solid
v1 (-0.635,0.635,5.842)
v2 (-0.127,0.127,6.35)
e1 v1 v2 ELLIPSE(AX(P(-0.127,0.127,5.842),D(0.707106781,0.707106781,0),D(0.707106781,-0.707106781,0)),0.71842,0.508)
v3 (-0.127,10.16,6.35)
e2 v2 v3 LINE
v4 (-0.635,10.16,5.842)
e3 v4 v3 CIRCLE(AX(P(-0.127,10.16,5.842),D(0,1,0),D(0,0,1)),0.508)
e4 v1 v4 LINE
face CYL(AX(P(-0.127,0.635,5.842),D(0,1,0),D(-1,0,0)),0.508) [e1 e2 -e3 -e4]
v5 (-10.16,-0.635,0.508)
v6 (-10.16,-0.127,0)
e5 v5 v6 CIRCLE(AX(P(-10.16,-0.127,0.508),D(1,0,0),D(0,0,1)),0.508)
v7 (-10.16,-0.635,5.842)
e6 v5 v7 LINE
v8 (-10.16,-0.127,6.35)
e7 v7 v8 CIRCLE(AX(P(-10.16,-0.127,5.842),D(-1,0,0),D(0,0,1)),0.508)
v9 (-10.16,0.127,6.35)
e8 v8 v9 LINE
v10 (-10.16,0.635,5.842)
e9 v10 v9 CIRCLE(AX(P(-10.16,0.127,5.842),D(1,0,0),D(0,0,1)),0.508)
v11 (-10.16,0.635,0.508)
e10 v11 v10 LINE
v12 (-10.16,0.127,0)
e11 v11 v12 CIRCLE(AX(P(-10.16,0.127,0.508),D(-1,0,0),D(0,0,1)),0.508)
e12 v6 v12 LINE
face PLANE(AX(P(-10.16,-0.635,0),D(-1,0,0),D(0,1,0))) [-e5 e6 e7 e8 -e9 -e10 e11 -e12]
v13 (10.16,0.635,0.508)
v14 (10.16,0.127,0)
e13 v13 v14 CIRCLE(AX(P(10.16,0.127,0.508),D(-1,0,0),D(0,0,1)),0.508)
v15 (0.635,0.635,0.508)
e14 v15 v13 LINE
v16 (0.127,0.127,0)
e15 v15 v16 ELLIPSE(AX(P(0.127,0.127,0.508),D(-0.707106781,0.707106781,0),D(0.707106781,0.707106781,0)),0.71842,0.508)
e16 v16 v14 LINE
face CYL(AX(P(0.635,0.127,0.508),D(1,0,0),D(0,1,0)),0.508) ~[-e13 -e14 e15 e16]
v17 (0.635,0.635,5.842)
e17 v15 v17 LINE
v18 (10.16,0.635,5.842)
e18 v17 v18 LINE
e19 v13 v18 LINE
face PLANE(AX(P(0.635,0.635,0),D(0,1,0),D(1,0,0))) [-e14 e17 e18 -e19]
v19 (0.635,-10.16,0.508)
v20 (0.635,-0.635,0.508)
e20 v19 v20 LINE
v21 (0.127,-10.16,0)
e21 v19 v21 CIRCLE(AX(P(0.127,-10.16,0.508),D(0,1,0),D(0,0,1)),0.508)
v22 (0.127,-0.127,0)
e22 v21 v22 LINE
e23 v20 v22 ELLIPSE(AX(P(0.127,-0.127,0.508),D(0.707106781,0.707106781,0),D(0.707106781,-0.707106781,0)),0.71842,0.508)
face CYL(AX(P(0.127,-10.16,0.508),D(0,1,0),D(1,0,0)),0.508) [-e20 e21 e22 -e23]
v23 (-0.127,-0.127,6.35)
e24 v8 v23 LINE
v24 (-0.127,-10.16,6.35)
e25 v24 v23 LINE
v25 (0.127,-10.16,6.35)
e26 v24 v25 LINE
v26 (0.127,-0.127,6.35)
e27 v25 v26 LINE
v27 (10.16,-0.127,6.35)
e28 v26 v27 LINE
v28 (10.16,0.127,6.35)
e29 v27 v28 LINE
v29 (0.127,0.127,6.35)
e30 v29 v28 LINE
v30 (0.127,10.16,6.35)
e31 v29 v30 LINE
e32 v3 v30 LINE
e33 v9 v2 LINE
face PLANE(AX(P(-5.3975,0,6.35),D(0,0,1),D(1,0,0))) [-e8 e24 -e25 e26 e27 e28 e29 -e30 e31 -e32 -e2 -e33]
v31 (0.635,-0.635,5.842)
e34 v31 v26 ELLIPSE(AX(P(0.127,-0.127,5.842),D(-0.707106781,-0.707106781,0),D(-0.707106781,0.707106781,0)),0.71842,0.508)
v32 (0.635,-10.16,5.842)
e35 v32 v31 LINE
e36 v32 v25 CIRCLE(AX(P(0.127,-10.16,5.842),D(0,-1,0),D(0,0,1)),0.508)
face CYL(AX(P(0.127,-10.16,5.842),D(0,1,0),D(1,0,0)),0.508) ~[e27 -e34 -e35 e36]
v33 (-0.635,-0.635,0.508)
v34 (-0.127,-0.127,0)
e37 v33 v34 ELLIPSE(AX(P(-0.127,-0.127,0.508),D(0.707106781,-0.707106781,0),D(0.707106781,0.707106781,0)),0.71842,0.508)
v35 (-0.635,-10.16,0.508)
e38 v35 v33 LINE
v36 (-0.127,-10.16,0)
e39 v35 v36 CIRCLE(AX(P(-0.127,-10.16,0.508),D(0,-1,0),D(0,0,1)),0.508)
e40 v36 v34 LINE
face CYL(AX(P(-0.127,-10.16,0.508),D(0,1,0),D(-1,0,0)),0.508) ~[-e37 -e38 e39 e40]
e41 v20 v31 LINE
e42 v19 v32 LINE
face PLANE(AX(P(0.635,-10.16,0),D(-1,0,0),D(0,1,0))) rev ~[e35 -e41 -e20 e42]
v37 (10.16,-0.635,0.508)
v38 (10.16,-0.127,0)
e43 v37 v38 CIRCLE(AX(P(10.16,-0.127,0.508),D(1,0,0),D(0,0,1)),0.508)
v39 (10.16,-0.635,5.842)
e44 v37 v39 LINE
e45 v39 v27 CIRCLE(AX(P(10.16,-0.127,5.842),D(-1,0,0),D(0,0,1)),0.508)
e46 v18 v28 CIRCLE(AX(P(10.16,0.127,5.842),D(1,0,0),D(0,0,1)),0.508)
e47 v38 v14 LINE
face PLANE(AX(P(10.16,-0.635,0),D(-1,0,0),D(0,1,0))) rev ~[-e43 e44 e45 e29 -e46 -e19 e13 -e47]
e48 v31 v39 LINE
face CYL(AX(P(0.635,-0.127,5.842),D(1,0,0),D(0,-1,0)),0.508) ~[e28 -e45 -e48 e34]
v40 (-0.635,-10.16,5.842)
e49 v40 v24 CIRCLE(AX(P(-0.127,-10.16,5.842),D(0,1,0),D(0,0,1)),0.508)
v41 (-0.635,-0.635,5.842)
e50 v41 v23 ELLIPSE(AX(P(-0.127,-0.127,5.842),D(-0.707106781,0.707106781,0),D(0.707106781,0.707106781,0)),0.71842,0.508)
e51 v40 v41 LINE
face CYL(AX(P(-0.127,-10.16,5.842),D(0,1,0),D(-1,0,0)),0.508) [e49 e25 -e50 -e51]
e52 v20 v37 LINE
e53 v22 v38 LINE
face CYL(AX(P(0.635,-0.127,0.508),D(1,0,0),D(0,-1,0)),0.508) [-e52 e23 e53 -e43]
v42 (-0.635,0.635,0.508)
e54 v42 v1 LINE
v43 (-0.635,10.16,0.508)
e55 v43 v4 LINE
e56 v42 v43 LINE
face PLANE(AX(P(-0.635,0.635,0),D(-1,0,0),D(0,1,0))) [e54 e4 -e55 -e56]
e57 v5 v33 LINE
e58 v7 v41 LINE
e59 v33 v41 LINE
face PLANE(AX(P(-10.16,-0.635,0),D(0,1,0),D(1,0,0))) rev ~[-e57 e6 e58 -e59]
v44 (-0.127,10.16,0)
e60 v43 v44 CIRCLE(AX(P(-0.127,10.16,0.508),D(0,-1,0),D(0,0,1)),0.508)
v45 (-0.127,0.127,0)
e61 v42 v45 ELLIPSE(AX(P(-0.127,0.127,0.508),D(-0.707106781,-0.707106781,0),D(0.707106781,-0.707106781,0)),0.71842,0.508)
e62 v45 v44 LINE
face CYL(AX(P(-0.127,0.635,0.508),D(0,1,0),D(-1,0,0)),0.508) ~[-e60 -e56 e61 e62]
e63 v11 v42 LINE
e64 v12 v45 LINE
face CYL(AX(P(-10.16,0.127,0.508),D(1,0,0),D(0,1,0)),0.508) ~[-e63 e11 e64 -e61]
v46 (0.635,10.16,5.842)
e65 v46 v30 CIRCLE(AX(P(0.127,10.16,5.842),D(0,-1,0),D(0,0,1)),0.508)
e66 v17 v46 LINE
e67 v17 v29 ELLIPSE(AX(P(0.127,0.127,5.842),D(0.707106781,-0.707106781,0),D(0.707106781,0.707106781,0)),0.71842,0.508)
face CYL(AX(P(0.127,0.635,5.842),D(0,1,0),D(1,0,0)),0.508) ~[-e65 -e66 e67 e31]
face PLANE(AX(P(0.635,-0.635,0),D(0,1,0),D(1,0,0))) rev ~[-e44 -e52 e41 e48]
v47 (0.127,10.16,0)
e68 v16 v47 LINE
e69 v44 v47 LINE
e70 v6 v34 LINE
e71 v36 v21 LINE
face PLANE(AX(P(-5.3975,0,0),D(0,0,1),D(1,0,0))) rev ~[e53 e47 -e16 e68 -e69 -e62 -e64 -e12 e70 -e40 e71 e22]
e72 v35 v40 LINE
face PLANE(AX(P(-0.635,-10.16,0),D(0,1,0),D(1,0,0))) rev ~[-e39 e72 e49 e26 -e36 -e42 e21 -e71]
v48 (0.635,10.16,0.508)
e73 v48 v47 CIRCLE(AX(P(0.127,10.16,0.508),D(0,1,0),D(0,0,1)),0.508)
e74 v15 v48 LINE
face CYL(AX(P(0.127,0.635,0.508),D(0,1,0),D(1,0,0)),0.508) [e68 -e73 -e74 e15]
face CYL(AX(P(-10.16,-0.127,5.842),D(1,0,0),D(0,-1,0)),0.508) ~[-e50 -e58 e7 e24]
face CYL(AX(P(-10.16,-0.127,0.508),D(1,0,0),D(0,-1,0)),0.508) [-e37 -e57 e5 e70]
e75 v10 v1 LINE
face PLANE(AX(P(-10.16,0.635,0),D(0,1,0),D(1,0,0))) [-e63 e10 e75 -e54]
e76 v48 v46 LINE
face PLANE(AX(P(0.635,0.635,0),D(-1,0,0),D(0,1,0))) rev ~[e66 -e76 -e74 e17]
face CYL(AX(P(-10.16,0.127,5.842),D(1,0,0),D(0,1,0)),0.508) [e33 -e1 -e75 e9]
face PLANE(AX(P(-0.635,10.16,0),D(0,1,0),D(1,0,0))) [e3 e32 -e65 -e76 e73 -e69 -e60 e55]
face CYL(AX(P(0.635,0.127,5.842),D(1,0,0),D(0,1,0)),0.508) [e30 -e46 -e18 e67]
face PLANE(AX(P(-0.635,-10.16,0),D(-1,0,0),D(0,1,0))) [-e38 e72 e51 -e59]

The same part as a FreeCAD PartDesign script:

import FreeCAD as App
import Part
import Sketcher
Q = App.Units.Quantity


def edges_at(feature, points):
    """Names of the edges that pass closest to the given points."""
    edges = feature.Shape.Edges
    near = lambda p: min(range(len(edges)), key=lambda i: edges[i].distToShape(Part.Vertex(*p))[0])
    return sorted({f"Edge{near(p) + 1}" for p in points})

doc = App.newDocument("Part")
params = doc.addObject("Spreadsheet::Sheet", "Params")
for row, (alias, value) in enumerate([
    ("sketch1_width", "0.05 in"),
    ("pad1_length", "0.25 in"),
    ("fillet_radius", "0.02 in"),
], start=1):
    params.set(f"A{row}", alias)
    params.set(f"B{row}", "=" + value)
    params.setAlias(f"B{row}", alias)

body = doc.addObject("PartDesign::Body", "Body")

# Sketch on XY plane
sketch1 = body.newObject("Sketcher::SketchObject", "Sketch")
sketch1.AttachmentSupport = (doc.getObject("XY_Plane"), [""])
sketch1.MapMode = "FlatFace"
sketch1.addGeometry([
    Part.LineSegment(App.Vector(-10.2, 0.6, 0), App.Vector(-10.2, -0.6, 0)),  # 0
    Part.LineSegment(App.Vector(-10.2, -0.6, 0), App.Vector(-0.6, -0.6, 0)),  # 1
    Part.LineSegment(App.Vector(-0.6, -0.6, 0), App.Vector(-0.6, -10.2, 0)),  # 2
    Part.LineSegment(App.Vector(-0.6, -10.2, 0), App.Vector(0.6, -10.2, 0)),  # 3
    Part.LineSegment(App.Vector(0.6, -10.2, 0), App.Vector(0.6, -0.6, 0)),  # 4
    Part.LineSegment(App.Vector(0.6, -0.6, 0), App.Vector(10.2, -0.6, 0)),  # 5
    Part.LineSegment(App.Vector(10.2, -0.6, 0), App.Vector(10.2, 0.6, 0)),  # 6
    Part.LineSegment(App.Vector(10.2, 0.6, 0), App.Vector(0.6, 0.6, 0)),  # 7
    Part.LineSegment(App.Vector(0.6, 0.6, 0), App.Vector(0.6, 10.2, 0)),  # 8
    Part.LineSegment(App.Vector(0.6, 10.2, 0), App.Vector(-0.6, 10.2, 0)),  # 9
    Part.LineSegment(App.Vector(-0.6, 10.2, 0), App.Vector(-0.6, 0.6, 0)),  # 10
    Part.LineSegment(App.Vector(-0.6, 0.6, 0), App.Vector(-10.2, 0.6, 0)),  # 11
], False)
sketch1.addConstraint([
    Sketcher.Constraint("Coincident", 0, 2, 1, 1),
    Sketcher.Constraint("Coincident", 1, 2, 2, 1),
    Sketcher.Constraint("Coincident", 2, 2, 3, 1),
    Sketcher.Constraint("Coincident", 3, 2, 4, 1),
    Sketcher.Constraint("Coincident", 4, 2, 5, 1),
    Sketcher.Constraint("Coincident", 5, 2, 6, 1),
    Sketcher.Constraint("Coincident", 6, 2, 7, 1),
    Sketcher.Constraint("Coincident", 7, 2, 8, 1),
    Sketcher.Constraint("Coincident", 8, 2, 9, 1),
    Sketcher.Constraint("Coincident", 9, 2, 10, 1),
    Sketcher.Constraint("Coincident", 10, 2, 11, 1),
    Sketcher.Constraint("Coincident", 11, 2, 0, 1),
    Sketcher.Constraint("Vertical", 0),
    Sketcher.Constraint("Horizontal", 1),
    Sketcher.Constraint("Vertical", 2),
    Sketcher.Constraint("Horizontal", 3),
    Sketcher.Constraint("Vertical", 4),
    Sketcher.Constraint("Horizontal", 5),
    Sketcher.Constraint("Vertical", 6),
    Sketcher.Constraint("Horizontal", 7),
    Sketcher.Constraint("Vertical", 8),
    Sketcher.Constraint("Horizontal", 9),
    Sketcher.Constraint("Vertical", 10),
    Sketcher.Constraint("Horizontal", 11),
    Sketcher.Constraint("Symmetric", 0, 2, 6, 2, -1, 1),
    Sketcher.Constraint("Symmetric", 2, 2, 8, 2, -1, 1),
    Sketcher.Constraint("Symmetric", 4, 2, 10, 2, -1, 1),
    Sketcher.Constraint("Symmetric", 1, 2, 4, 2, -2),
    Sketcher.Constraint("Equal", 9, 0),
    Sketcher.Constraint("Equal", 11, 2),
    Sketcher.Constraint("DistanceX", 3, 1, 3, 2, Q("0.05 in")),
    Sketcher.Constraint("DistanceX", 0, 2, -1, 1, Q("0.4 in")),
])
sketch1.setExpression("Constraints[30]", "Params.sketch1_width")
pad1 = body.newObject("PartDesign::Pad", "Pad")
pad1.Profile = sketch1
pad1.setExpression("Length", "Params.pad1_length")
doc.recompute()

fillet = body.newObject("PartDesign::Fillet", "Fillet")
fillet.Base = (pad1, edges_at(pad1, [
    (0.635, -5.397, 6.35),
    (-0.635, -5.397, 6.35),
    (-5.397, -0.635, 6.35),
    (-5.397, 0.635, 6.35),
    (-0.635, 5.397, 6.35),
    (0.635, 5.397, 6.35),
    (5.397, 0.635, 6.35),
    (5.397, -0.635, 6.35),
    (-5.397, 0.635, 0),
    (-5.397, -0.635, 0),
    (5.397, -0.635, 0),
    (5.397, 0.635, 0),
    (0.635, 5.397, 0),
    (-0.635, 5.397, 0),
    (-0.635, -5.397, 0),
    (0.635, -5.397, 0),
]))
fillet.setExpression("Radius", "Params.fillet_radius")

doc.recompute()
